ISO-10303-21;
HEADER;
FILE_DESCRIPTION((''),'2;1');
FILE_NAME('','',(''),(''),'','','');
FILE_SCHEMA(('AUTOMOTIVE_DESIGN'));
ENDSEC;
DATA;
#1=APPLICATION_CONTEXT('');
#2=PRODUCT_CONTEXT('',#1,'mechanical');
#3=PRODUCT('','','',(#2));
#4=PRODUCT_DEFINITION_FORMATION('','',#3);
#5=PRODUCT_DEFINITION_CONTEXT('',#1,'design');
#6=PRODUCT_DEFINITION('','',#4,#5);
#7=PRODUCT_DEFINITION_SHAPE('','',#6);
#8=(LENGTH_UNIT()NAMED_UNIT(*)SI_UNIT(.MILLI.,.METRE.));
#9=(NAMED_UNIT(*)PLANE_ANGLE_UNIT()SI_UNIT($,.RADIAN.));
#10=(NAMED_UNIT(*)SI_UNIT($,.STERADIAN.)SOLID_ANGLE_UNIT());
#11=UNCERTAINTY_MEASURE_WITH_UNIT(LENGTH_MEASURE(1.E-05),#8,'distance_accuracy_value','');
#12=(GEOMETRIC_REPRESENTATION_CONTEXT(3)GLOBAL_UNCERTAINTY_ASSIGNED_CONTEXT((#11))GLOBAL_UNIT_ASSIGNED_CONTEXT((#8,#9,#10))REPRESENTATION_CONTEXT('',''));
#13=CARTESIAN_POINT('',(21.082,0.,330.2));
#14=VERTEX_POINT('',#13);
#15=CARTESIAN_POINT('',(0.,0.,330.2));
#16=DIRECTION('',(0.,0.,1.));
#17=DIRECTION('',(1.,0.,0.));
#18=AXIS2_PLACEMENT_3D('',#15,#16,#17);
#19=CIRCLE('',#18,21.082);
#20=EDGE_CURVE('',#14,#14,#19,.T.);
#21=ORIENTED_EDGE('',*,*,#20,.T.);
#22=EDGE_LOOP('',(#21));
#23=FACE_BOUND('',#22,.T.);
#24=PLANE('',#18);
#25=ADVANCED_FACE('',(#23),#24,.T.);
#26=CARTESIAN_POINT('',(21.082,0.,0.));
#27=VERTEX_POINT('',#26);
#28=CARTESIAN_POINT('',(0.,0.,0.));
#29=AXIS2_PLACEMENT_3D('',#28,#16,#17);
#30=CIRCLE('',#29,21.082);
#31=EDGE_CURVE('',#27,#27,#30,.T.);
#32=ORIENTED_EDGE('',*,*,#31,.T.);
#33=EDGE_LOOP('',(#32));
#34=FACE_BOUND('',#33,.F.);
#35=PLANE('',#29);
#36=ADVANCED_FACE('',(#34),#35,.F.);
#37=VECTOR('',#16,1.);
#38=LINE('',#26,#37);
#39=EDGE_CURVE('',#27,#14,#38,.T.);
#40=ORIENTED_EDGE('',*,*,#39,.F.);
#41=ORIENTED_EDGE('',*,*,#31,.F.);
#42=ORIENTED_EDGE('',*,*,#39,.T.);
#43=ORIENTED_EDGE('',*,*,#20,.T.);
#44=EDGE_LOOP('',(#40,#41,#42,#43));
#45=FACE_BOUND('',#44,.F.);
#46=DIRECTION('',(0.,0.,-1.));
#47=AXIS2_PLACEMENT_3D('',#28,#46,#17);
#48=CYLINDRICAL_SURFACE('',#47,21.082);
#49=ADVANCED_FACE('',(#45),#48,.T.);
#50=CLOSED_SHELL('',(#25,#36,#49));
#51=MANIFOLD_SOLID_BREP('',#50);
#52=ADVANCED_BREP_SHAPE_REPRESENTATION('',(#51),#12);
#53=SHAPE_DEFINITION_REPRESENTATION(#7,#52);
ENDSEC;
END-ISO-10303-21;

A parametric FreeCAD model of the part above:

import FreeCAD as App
import Part
import Sketcher

V = App.Vector
Q = App.Units.Quantity

doc = App.newDocument("Part")
body = doc.addObject("PartDesign::Body", "Body")

sketch1 = body.newObject("Sketcher::SketchObject", "Sketch")
sketch1.AttachmentSupport = (doc.getObject("XY_Plane"), [""])
sketch1.MapMode = "FlatFace"
sketch1.addGeometry(Part.Circle(V(0, 0, 0), V(0, 0, 1), 21), False)
sketch1.addConstraint([
    Sketcher.Constraint("Coincident", 0, 3, -1, 1),
    Sketcher.Constraint("Diameter", 0, Q("1.66 in")),
])
pad1 = body.newObject("PartDesign::Pad", "Pad")
pad1.Profile = sketch1
pad1.Length = Q("13 in")

doc.recompute()
